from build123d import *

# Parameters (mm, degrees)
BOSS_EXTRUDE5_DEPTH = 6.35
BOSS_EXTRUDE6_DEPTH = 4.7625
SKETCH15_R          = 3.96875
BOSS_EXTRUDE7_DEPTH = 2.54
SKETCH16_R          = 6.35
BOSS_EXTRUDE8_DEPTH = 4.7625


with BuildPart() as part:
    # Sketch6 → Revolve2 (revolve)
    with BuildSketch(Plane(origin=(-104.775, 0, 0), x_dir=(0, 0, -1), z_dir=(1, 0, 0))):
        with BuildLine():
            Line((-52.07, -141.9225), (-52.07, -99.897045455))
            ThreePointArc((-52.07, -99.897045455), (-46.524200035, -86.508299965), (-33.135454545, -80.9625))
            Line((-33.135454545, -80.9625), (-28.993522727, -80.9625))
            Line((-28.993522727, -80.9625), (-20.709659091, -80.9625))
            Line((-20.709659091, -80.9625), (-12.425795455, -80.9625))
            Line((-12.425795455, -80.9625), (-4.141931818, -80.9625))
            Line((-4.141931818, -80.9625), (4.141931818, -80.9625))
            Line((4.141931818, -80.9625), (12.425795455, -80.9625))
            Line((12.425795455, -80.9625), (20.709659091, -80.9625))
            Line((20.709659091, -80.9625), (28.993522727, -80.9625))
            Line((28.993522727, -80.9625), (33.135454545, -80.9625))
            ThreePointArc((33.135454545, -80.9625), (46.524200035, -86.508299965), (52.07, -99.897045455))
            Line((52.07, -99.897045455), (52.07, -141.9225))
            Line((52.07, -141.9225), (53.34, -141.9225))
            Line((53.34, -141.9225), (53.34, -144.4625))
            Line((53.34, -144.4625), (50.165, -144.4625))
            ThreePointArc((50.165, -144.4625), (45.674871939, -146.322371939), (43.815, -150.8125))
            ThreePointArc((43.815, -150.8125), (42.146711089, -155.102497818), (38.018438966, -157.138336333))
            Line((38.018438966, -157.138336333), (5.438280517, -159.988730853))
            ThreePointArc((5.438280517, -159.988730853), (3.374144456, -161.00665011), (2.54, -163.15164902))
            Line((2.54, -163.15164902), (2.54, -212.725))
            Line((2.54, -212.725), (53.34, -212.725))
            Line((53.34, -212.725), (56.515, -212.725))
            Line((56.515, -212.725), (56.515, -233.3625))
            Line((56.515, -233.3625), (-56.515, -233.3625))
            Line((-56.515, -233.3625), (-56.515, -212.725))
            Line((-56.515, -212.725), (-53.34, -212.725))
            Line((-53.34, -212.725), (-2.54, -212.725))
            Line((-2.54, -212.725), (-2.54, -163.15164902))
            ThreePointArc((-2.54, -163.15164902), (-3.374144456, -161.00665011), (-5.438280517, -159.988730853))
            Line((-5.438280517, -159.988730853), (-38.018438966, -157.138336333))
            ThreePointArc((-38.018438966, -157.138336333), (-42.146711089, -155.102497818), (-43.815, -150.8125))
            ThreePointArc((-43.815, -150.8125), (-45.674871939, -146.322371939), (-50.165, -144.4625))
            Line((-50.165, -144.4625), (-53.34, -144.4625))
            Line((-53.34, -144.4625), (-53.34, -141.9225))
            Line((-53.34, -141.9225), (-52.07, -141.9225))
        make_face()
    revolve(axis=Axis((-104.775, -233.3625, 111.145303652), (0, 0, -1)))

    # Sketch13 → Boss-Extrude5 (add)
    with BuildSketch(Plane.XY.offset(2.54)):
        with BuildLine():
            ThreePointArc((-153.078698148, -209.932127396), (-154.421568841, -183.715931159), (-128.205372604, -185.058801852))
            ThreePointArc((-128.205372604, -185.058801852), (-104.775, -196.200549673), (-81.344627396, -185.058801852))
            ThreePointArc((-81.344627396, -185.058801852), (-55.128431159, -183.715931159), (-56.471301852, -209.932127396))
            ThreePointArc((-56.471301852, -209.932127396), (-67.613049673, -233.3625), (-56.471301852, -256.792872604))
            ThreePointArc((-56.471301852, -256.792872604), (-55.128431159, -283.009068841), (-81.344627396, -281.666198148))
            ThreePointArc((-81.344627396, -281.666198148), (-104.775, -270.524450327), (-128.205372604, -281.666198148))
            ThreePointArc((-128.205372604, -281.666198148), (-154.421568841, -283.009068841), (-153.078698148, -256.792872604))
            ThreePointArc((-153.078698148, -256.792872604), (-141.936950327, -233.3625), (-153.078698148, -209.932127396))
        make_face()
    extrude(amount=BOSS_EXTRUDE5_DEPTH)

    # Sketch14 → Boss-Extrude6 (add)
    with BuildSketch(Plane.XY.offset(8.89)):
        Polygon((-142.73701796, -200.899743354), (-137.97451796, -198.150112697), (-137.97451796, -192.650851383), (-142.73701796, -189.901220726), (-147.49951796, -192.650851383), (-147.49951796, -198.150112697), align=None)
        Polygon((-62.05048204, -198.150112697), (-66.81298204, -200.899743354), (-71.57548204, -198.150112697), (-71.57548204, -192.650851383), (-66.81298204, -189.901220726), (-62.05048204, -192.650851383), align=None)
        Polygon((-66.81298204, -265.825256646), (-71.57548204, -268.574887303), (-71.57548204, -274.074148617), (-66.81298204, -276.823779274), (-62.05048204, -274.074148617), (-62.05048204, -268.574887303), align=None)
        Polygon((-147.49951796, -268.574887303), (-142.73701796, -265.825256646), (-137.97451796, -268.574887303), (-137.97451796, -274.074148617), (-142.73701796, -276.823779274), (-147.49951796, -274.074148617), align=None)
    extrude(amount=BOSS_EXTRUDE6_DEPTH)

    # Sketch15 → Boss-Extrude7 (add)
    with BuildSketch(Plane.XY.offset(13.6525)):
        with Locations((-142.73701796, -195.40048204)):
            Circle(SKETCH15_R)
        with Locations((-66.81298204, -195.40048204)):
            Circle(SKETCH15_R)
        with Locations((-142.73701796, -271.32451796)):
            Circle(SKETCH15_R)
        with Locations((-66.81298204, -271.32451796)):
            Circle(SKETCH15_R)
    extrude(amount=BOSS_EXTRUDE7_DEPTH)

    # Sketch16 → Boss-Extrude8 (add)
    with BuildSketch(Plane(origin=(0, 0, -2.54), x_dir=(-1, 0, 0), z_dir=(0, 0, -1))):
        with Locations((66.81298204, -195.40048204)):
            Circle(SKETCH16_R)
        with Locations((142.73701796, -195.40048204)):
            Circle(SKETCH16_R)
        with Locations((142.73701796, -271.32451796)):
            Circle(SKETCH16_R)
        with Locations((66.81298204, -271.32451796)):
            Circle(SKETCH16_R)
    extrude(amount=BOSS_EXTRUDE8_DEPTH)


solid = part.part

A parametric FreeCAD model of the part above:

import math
import FreeCAD as App
import Part
import Sketcher
from FreeCAD import Vector
Q = App.Units.Quantity


def add_polygon(sketch, points):
    """Adds a closed chain of lines whose ends are joined by coincident constraints."""
    first, n = sketch.GeometryCount, len(points)
    for a, b in zip(points, points[1:] + points[:1]):
        sketch.addGeometry(Part.LineSegment(App.Vector(*a, 0), App.Vector(*b, 0)), False)
    for i in range(n):
        sketch.addConstraint(Sketcher.Constraint("Coincident", first + i, 2, first + (i + 1) % n, 1))

doc = App.newDocument("Part")
params = doc.addObject("Spreadsheet::Sheet", "Params")
for row, (alias, value) in enumerate([
    ("sketch1_radius", "0.25 in"),
    ("sketch1_width", "0.1 in"),
    ("sketch1_radius2", "0.125 in"),
    ("sketch1_height", "0.05 in"),
    ("sketch1_height2", "4.45 in"),
    ("revolution_angle", "360 deg"),
    ("pad1_length", "0.25 in"),
    ("pad2_length", "0.1875 in"),
    ("sketch4_diameter", "0.3125 in"),
    ("pad3_length", "0.1 in"),
    ("sketch5_diameter", "0.5 in"),
    ("pad4_length", "0.1875 in"),
], start=1):
    params.set(f"A{row}", alias)
    params.set(f"B{row}", "=" + value)
    params.setAlias(f"B{row}", alias)

body = doc.addObject("PartDesign::Body", "Body")

sketch1 = body.newObject("Sketcher::SketchObject", "Sketch")
sketch1.AttachmentSupport = (doc.getObject("YZ_Plane"), [""])
sketch1.MapMode = "FlatFace"
sketch1.AttachmentOffset = App.Placement(Vector(0, 0, -4.125 * 25.4), App.Rotation())
sketch1.addGeometry([
    Part.LineSegment(Vector(-99.9, 52.1, 0), Vector(-141.9, 52.1, 0)),
    Part.LineSegment(Vector(-141.9, 52.1, 0), Vector(-141.9, 53.3, 0)),
    Part.LineSegment(Vector(-141.9, 53.3, 0), Vector(-144.5, 53.3, 0)),
    Part.LineSegment(Vector(-144.5, 53.3, 0), Vector(-144.5, 50.2, 0)),
    Part.ArcOfCircle(Part.Circle(Vector(-150.8, 50.2, 0), Vector(0, 0, 1), 6.3), math.radians(-90), math.radians(0)),
    Part.ArcOfCircle(Part.Circle(Vector(-150.8, 37.5, 0), Vector(0, 0, 1), 6.3), math.radians(90), math.radians(175)),
    Part.LineSegment(Vector(-157.1, 38, 0), Vector(-160, 5.4, 0)),
    Part.ArcOfCircle(Part.Circle(Vector(-163.2, 5.7, 0), Vector(0, 0, 1), 3.2), math.radians(-90), math.radians(-5)),
    Part.LineSegment(Vector(-163.2, 2.5, 0), Vector(-212.7, 2.5, 0)),
    Part.LineSegment(Vector(-212.7, 2.5, 0), Vector(-212.7, 56.5, 0)),
    Part.LineSegment(Vector(-212.7, 56.5, 0), Vector(-233.4, 56.5, 0)),
    Part.LineSegment(Vector(-233.4, 56.5, 0), Vector(-233.4, -56.5, 0)),
    Part.LineSegment(Vector(-233.4, -56.5, 0), Vector(-212.7, -56.5, 0)),
    Part.LineSegment(Vector(-212.7, -56.5, 0), Vector(-212.7, -2.5, 0)),
    Part.LineSegment(Vector(-212.7, -2.5, 0), Vector(-163.2, -2.5, 0)),
    Part.ArcOfCircle(Part.Circle(Vector(-163.2, -5.7, 0), Vector(0, 0, 1), 3.2), math.radians(5), math.radians(90)),
    Part.LineSegment(Vector(-160, -5.4, 0), Vector(-157.1, -38, 0)),
    Part.ArcOfCircle(Part.Circle(Vector(-150.8, -37.5, 0), Vector(0, 0, 1), 6.3), math.radians(-175), math.radians(-90)),
    Part.ArcOfCircle(Part.Circle(Vector(-150.8, -50.2, 0), Vector(0, 0, 1), 6.3), math.radians(0), math.radians(90)),
    Part.LineSegment(Vector(-144.5, -50.2, 0), Vector(-144.5, -53.3, 0)),
    Part.LineSegment(Vector(-144.5, -53.3, 0), Vector(-141.9, -53.3, 0)),
    Part.LineSegment(Vector(-141.9, -53.3, 0), Vector(-141.9, -52.1, 0)),
    Part.LineSegment(Vector(-141.9, -52.1, 0), Vector(-99.9, -52.1, 0)),
    Part.ArcOfCircle(Part.Circle(Vector(-99.9, -33.1, 0), Vector(0, 0, 1), 18.9), math.radians(-90), math.radians(0)),
    Part.LineSegment(Vector(-81, -33.1, 0), Vector(-81, 33.1, 0)),
    Part.ArcOfCircle(Part.Circle(Vector(-99.9, 33.1, 0), Vector(0, 0, 1), 18.9), math.radians(0), math.radians(90)),
], False)
sketch1.addGeometry(Part.LineSegment(Vector(-233.4, 56.5, 0), Vector(-233.4, -56.5, 0)), True)
sketch1.addConstraint([
    Sketcher.Constraint("Coincident", 0, 2, 1, 1),
    Sketcher.Constraint("Coincident", 1, 2, 2, 1),
    Sketcher.Constraint("Coincident", 2, 2, 3, 1),
    Sketcher.Constraint("Tangent", 3, 2, 4, 2),
    Sketcher.Constraint("Tangent", 4, 1, 5, 1),
    Sketcher.Constraint("Tangent", 5, 2, 6, 1),
    Sketcher.Constraint("Tangent", 6, 2, 7, 2),
    Sketcher.Constraint("Tangent", 7, 1, 8, 1),
    Sketcher.Constraint("Coincident", 8, 2, 9, 1),
    Sketcher.Constraint("Coincident", 9, 2, 10, 1),
    Sketcher.Constraint("Coincident", 10, 2, 11, 1),
    Sketcher.Constraint("Coincident", 11, 2, 12, 1),
    Sketcher.Constraint("Coincident", 12, 2, 13, 1),
    Sketcher.Constraint("Coincident", 13, 2, 14, 1),
    Sketcher.Constraint("Tangent", 14, 2, 15, 2),
    Sketcher.Constraint("Tangent", 15, 1, 16, 1),
    Sketcher.Constraint("Tangent", 16, 2, 17, 1),
    Sketcher.Constraint("Tangent", 17, 2, 18, 2),
    Sketcher.Constraint("Tangent", 18, 1, 19, 1),
    Sketcher.Constraint("Coincident", 19, 2, 20, 1),
    Sketcher.Constraint("Coincident", 20, 2, 21, 1),
    Sketcher.Constraint("Coincident", 21, 2, 22, 1),
    Sketcher.Constraint("Tangent", 22, 2, 23, 1),
    Sketcher.Constraint("Tangent", 23, 2, 24, 1),
    Sketcher.Constraint("Tangent", 24, 2, 25, 1),
    Sketcher.Constraint("Tangent", 25, 2, 0, 1),
    Sketcher.Constraint("Horizontal", 0),
    Sketcher.Constraint("Vertical", 1),
    Sketcher.Constraint("Horizontal", 2),
    Sketcher.Constraint("Vertical", 3),
    Sketcher.Constraint("Horizontal", 8),
    Sketcher.Constraint("Vertical", 9),
    Sketcher.Constraint("Horizontal", 10),
    Sketcher.Constraint("Vertical", 11),
    Sketcher.Constraint("Horizontal", 12),
    Sketcher.Constraint("Vertical", 13),
    Sketcher.Constraint("Horizontal", 14),
    Sketcher.Constraint("Vertical", 19),
    Sketcher.Constraint("Horizontal", 20),
    Sketcher.Constraint("Vertical", 21),
    Sketcher.Constraint("Horizontal", 22),
    Sketcher.Constraint("Vertical", 24),
    Sketcher.Constraint("Vertical", 26),
    Sketcher.Constraint("Coincident", 26, 1, 10, 2),
    Sketcher.Constraint("Equal", 4, 5),
    Sketcher.Constraint("Equal", 7, 15),
    Sketcher.Constraint("Equal", 5, 17),
    Sketcher.Constraint("Equal", 17, 18),
    Sketcher.Constraint("Equal", 23, 25),
    Sketcher.Constraint("Symmetric", 7, 3, 15, 3, -1),
    Sketcher.Constraint("Symmetric", 5, 3, 17, 3, -1),
    Sketcher.Constraint("Symmetric", 9, 2, 12, 2, -1),
    Sketcher.Constraint("Symmetric", 2, 2, 19, 2, -1),
    Sketcher.Constraint("Symmetric", 0, 2, 21, 2, -1),
    Sketcher.Constraint("Horizontal", 12, 2, 26, 2),
    Sketcher.Constraint("Vertical", 4, 3, 5, 3),
    Sketcher.Constraint("Radius", 4, Q("0.25 in")),
    Sketcher.Constraint("DistanceX", 2, 2, 2, 1, Q("0.1 in")),
    Sketcher.Constraint("Angle", 6, Q("-95 deg")),
    Sketcher.Constraint("Radius", 7, Q("0.125 in")),
    Sketcher.Constraint("DistanceY", 11, 2, 15, 3, Q("2 in")),
    Sketcher.Constraint("DistanceY", 1, 1, 1, 2, Q("0.05 in")),
    Sketcher.Constraint("DistanceY", 11, 2, 11, 1, Q("4.45 in")),
    Sketcher.Constraint("DistanceY", -1, 1, 1, 2, Q("2.1 in")),
    Sketcher.Constraint("DistanceY", 15, 3, 5, 3, Q("1.7 in")),
    Sketcher.Constraint("DistanceX", 21, 2, 23, 2, Q("2.4 in")),
    Sketcher.Constraint("DistanceX", 10, 2, 10, 1, Q("0.8125 in")),
    Sketcher.Constraint("DistanceX", 10, 2, 4, 3, Q("3.25 in")),
    Sketcher.Constraint("DistanceX", 4, 3, -1, 1, Q("5.9375 in")),
    Sketcher.Constraint("Radius", 23, 18.934545),
])
sketch1.setExpression("Constraints[56]", "Params.sketch1_radius")
sketch1.setExpression("Constraints[57]", "Params.sketch1_width")
sketch1.setExpression("Constraints[59]", "Params.sketch1_radius2")
sketch1.setExpression("Constraints[61]", "Params.sketch1_height")
sketch1.setExpression("Constraints[62]", "Params.sketch1_height2")
revolution = body.newObject("PartDesign::Revolution", "Revolution")
revolution.Profile = sketch1
revolution.ReferenceAxis = (sketch1, ["Axis0"])
revolution.setExpression("Angle", "Params.revolution_angle")

sketch2 = body.newObject("Sketcher::SketchObject", "Sketch001")
sketch2.AttachmentSupport = (doc.getObject("XY_Plane"), [""])
sketch2.MapMode = "FlatFace"
sketch2.AttachmentOffset = App.Placement(Vector(0, 0, 0.1 * 25.4), App.Rotation())
sketch2.addGeometry([
    Part.ArcOfCircle(Part.Circle(Vector(-142, -196, 0), Vector(0, 0, 1), 18), math.radians(39), math.radians(231)),
    Part.ArcOfCircle(Part.Circle(Vector(-172, -233, 0), Vector(0, 0, 1), 30), math.radians(-51), math.radians(51)),
    Part.ArcOfCircle(Part.Circle(Vector(-142, -271, 0), Vector(0, 0, 1), 18), math.radians(129), math.radians(321)),
    Part.ArcOfCircle(Part.Circle(Vector(-105, -301, 0), Vector(0, 0, 1), 30), math.radians(39), math.radians(141)),
    Part.ArcOfCircle(Part.Circle(Vector(-68, -271, 0), Vector(0, 0, 1), 18), math.radians(-141), math.radians(51)),
    Part.ArcOfCircle(Part.Circle(Vector(-37, -233, 0), Vector(0, 0, 1), 30), math.radians(129), math.radians(231)),
    Part.ArcOfCircle(Part.Circle(Vector(-68, -196, 0), Vector(0, 0, 1), 18), math.radians(-51), math.radians(141)),
    Part.ArcOfCircle(Part.Circle(Vector(-105, -166, 0), Vector(0, 0, 1), 30), math.radians(-141), math.radians(-39)),
], False)
sketch2.addConstraint([
    Sketcher.Constraint("Tangent", 0, 2, 1, 2),
    Sketcher.Constraint("Tangent", 1, 1, 2, 1),
    Sketcher.Constraint("Tangent", 2, 2, 3, 2),
    Sketcher.Constraint("Tangent", 3, 1, 4, 1),
    Sketcher.Constraint("Tangent", 4, 2, 5, 2),
    Sketcher.Constraint("Tangent", 5, 1, 6, 1),
    Sketcher.Constraint("Tangent", 6, 2, 7, 2),
    Sketcher.Constraint("Tangent", 7, 1, 0, 1),
    Sketcher.Constraint("Equal", 0, 2),
    Sketcher.Constraint("Equal", 1, 3),
    Sketcher.Constraint("Equal", 2, 4),
    Sketcher.Constraint("Equal", 3, 5),
    Sketcher.Constraint("Equal", 4, 6),
    Sketcher.Constraint("Equal", 5, 7),
    Sketcher.Constraint("Horizontal", 2, 3, 4, 3),
    Sketcher.Constraint("Horizontal", 1, 3, 5, 3),
    Sketcher.Constraint("Horizontal", 0, 3, 6, 3),
    Sketcher.Constraint("Vertical", 0, 3, 2, 3),
    Sketcher.Constraint("DistanceY", 1, 3, -1, 1, Q("9.1875 in")),
    Sketcher.Constraint("DistanceX", 3, 3, -1, 1, Q("4.125 in")),
    Sketcher.Constraint("Radius", 1, 30.20715),
    Sketcher.Constraint("Radius", 0, 17.680635),
    Sketcher.Constraint("DistanceX", 1, 3, -1, 1, 172.144101),
    Sketcher.Constraint("DistanceY", 3, 3, -1, 1, 300.731601),
])
pad1 = body.newObject("PartDesign::Pad", "Pad")
pad1.Profile = sketch2
pad1.setExpression("Length", "Params.pad1_length")

sketch3 = body.newObject("Sketcher::SketchObject", "Sketch002")
sketch3.AttachmentSupport = (doc.getObject("XY_Plane"), [""])
sketch3.MapMode = "FlatFace"
sketch3.AttachmentOffset = App.Placement(Vector(0, 0, 0.35 * 25.4), App.Rotation())
add_polygon(sketch3, [(-143, -201), (-138, -198), (-138, -193), (-143, -190), (-147, -193), (-147, -198)])
add_polygon(sketch3, [(-67, -201), (-62, -198), (-62, -193), (-67, -190), (-72, -193), (-72, -198)])
add_polygon(sketch3, [(-67, -266), (-72, -269), (-72, -274), (-67, -277), (-62, -274), (-62, -269)])
add_polygon(sketch3, [(-143, -266), (-147, -269), (-147, -274), (-143, -277), (-138, -274), (-138, -269)])
sketch3.addConstraint([
    Sketcher.Constraint("Vertical", 1),
    Sketcher.Constraint("Vertical", 4),
    Sketcher.Constraint("Vertical", 7),
    Sketcher.Constraint("Vertical", 10),
    Sketcher.Constraint("Vertical", 13),
    Sketcher.Constraint("Vertical", 16),
    Sketcher.Constraint("Vertical", 19),
    Sketcher.Constraint("Vertical", 22),
    Sketcher.Constraint("Parallel", 0, 3),
    Sketcher.Constraint("Parallel", 2, 5),
    Sketcher.Constraint("Parallel", 3, 6),
    Sketcher.Constraint("Parallel", 5, 8),
    Sketcher.Constraint("Parallel", 6, 9),
    Sketcher.Constraint("Parallel", 8, 11),
    Sketcher.Constraint("Parallel", 9, 12),
    Sketcher.Constraint("Parallel", 11, 14),
    Sketcher.Constraint("Parallel", 12, 15),
    Sketcher.Constraint("Parallel", 14, 17),
    Sketcher.Constraint("Parallel", 15, 18),
    Sketcher.Constraint("Parallel", 17, 20),
    Sketcher.Constraint("Parallel", 18, 21),
    Sketcher.Constraint("Parallel", 20, 23),
    Sketcher.Constraint("Horizontal", 1, 2, 3, 2),
    Sketcher.Constraint("Horizontal", 0, 2, 4, 2),
    Sketcher.Constraint("Horizontal", 4, 2, 6, 2),
    Sketcher.Constraint("Horizontal", 3, 2, 7, 2),
    Sketcher.Constraint("Horizontal", 2, 2, 8, 2),
    Sketcher.Constraint("Horizontal", 7, 2, 9, 2),
    Sketcher.Constraint("Horizontal", 6, 2, 10, 2),
    Sketcher.Constraint("Horizontal", 13, 2, 15, 2),
    Sketcher.Constraint("Horizontal", 12, 2, 16, 2),
    Sketcher.Constraint("Horizontal", 16, 2, 18, 2),
    Sketcher.Constraint("Horizontal", 15, 2, 19, 2),
    Sketcher.Constraint("Horizontal", 14, 2, 20, 2),
    Sketcher.Constraint("Horizontal", 19, 2, 21, 2),
    Sketcher.Constraint("Horizontal", 18, 2, 22, 2),
    Sketcher.Constraint("Vertical", 2, 2, 5, 2),
    Sketcher.Constraint("Vertical", 10, 2, 12, 2),
    Sketcher.Constraint("Vertical", 11, 2, 14, 2),
    Sketcher.Constraint("Vertical", 4, 2, 18, 2),
    Sketcher.Constraint("Equal", 10, 13),
    Sketcher.Constraint("Angle", 0, Q("30 deg")),
    Sketcher.Constraint("DistanceX", 2, 2, 1, 2, Q("0.1875 in")),
    Sketcher.Constraint("DistanceY", 1, 1, 1, 2, 5.499261),
    Sketcher.Constraint("DistanceY", 1, 2, -1, 1, 192.650851),
    Sketcher.Constraint("DistanceY", 13, 2, -1, 1, 274.074149),
    Sketcher.Constraint("DistanceX", 0, 2, -1, 1, 137.974518),
    Sketcher.Constraint("DistanceX", 6, 2, -1, 1, 62.050482),
])
pad2 = body.newObject("PartDesign::Pad", "Pad001")
pad2.Profile = sketch3
pad2.setExpression("Length", "Params.pad2_length")

sketch4 = body.newObject("Sketcher::SketchObject", "Sketch003")
sketch4.AttachmentSupport = (doc.getObject("XY_Plane"), [""])
sketch4.MapMode = "FlatFace"
sketch4.AttachmentOffset = App.Placement(Vector(0, 0, 0.5375 * 25.4), App.Rotation())
sketch4.addGeometry([
    Part.Circle(Vector(-142.7, -195.4, 0), Vector(0, 0, 1), 4),
    Part.Circle(Vector(-66.8, -195.4, 0), Vector(0, 0, 1), 4),
    Part.Circle(Vector(-142.7, -271.3, 0), Vector(0, 0, 1), 4),
    Part.Circle(Vector(-66.8, -271.3, 0), Vector(0, 0, 1), 4),
], False)
sketch4.addConstraint([
    Sketcher.Constraint("Equal", 0, 1),
    Sketcher.Constraint("Equal", 1, 2),
    Sketcher.Constraint("Equal", 2, 3),
    Sketcher.Constraint("Horizontal", 0, 3, 1, 3),
    Sketcher.Constraint("Horizontal", 2, 3, 3, 3),
    Sketcher.Constraint("Vertical", 0, 3, 2, 3),
    Sketcher.Constraint("Vertical", 1, 3, 3, 3),
    Sketcher.Constraint("Diameter", 0, Q("0.3125 in")),
    Sketcher.Constraint("DistanceX", 0, 3, -1, 1, 142.737018),
    Sketcher.Constraint("DistanceY", 0, 3, -1, 1, 195.400482),
    Sketcher.Constraint("DistanceX", 1, 3, -1, 1, 66.812982),
    Sketcher.Constraint("DistanceY", 2, 3, -1, 1, 271.324518),
])
sketch4.setExpression("Constraints[7]", "Params.sketch4_diameter")
pad3 = body.newObject("PartDesign::Pad", "Pad002")
pad3.Profile = sketch4
pad3.setExpression("Length", "Params.pad3_length")

sketch5 = body.newObject("Sketcher::SketchObject", "Sketch004")
sketch5.AttachmentSupport = (doc.getObject("XY_Plane"), [""])
sketch5.MapMode = "FlatFace"
sketch5.AttachmentOffset = App.Placement(Vector(0, 0, -0.1 * 25.4), App.Rotation())
sketch5.addGeometry([
    Part.Circle(Vector(-67, -195, 0), Vector(0, 0, 1), 6),
    Part.Circle(Vector(-143, -195, 0), Vector(0, 0, 1), 6),
    Part.Circle(Vector(-143, -271, 0), Vector(0, 0, 1), 6),
    Part.Circle(Vector(-67, -271, 0), Vector(0, 0, 1), 6),
], False)
sketch5.addConstraint([
    Sketcher.Constraint("Equal", 0, 1),
    Sketcher.Constraint("Equal", 1, 2),
    Sketcher.Constraint("Equal", 2, 3),
    Sketcher.Constraint("Horizontal", 0, 3, 1, 3),
    Sketcher.Constraint("Horizontal", 2, 3, 3, 3),
    Sketcher.Constraint("Vertical", 1, 3, 2, 3),
    Sketcher.Constraint("Vertical", 0, 3, 3, 3),
    Sketcher.Constraint("Diameter", 0, Q("0.5 in")),
    Sketcher.Constraint("DistanceX", 0, 3, -1, 1, 66.812982),
    Sketcher.Constraint("DistanceY", 0, 3, -1, 1, 195.400482),
    Sketcher.Constraint("DistanceX", 1, 3, -1, 1, 142.737018),
    Sketcher.Constraint("DistanceY", 2, 3, -1, 1, 271.324518),
])
sketch5.setExpression("Constraints[7]", "Params.sketch5_diameter")
pad4 = body.newObject("PartDesign::Pad", "Pad003")
pad4.Profile = sketch5
pad4.setExpression("Length", "Params.pad4_length")
pad4.Reversed = True

doc.recompute()
